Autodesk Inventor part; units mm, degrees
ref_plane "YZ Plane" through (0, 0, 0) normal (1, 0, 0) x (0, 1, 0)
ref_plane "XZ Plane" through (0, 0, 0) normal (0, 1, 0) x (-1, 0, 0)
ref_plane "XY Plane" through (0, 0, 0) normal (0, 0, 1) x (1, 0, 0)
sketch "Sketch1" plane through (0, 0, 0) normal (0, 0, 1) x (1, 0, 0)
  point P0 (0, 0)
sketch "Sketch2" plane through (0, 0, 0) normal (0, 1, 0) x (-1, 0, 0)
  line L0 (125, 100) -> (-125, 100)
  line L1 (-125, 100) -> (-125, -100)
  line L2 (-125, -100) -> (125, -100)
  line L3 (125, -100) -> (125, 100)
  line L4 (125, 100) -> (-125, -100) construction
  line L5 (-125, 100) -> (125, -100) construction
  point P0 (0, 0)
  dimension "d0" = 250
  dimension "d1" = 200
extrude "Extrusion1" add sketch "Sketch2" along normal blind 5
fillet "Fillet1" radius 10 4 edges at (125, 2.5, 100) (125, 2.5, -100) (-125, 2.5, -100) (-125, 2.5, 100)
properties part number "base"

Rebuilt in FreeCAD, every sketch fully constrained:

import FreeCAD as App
import Part
import Sketcher

V = App.Vector


def edges_at(feature, points):
    """Names of the edges that pass closest to the given points."""
    edges = feature.Shape.Edges
    near = lambda p: min(range(len(edges)), key=lambda i: edges[i].distToShape(Part.Vertex(*p))[0])
    return sorted({f"Edge{near(p) + 1}" for p in points})

doc = App.newDocument("Part")
body = doc.addObject("PartDesign::Body", "Body")

# Sketch on XZ plane
sketch1 = doc.addObject("Sketcher::SketchObject", "Sketch")
body.addObject(sketch1)
sketch1.AttachmentSupport = (doc.XZ_Plane, [""])
sketch1.MapMode = "FlatFace"
sketch1.addGeometry([
    Part.LineSegment(V(-125, -100, 0), V(-125, 100, 0)),
    Part.LineSegment(V(-125, 100, 0), V(125, 100, 0)),
    Part.LineSegment(V(125, 100, 0), V(125, -100, 0)),
    Part.LineSegment(V(125, -100, 0), V(-125, -100, 0)),
], False)
sketch1.addConstraint([
    Sketcher.Constraint("Coincident", 0, 2, 1, 1),
    Sketcher.Constraint("Coincident", 1, 2, 2, 1),
    Sketcher.Constraint("Coincident", 2, 2, 3, 1),
    Sketcher.Constraint("Coincident", 3, 2, 0, 1),
    Sketcher.Constraint("Vertical", 0),
    Sketcher.Constraint("Horizontal", 1),
    Sketcher.Constraint("Vertical", 2),
    Sketcher.Constraint("Horizontal", 3),
    Sketcher.Constraint("Symmetric", 0, 2, 2, 2, -1, 1),
    Sketcher.Constraint("DistanceX", 1, 1, 1, 2, 250.0),
    Sketcher.Constraint("DistanceY", 0, 1, 0, 2, 200.0),
])
pad1 = doc.addObject("PartDesign::Pad", "Pad")
body.addObject(pad1)
pad1.Profile = sketch1
pad1.Length = 5
pad1.Reversed = True
doc.recompute()

fillet = doc.addObject("PartDesign::Fillet", "Fillet")
body.addObject(fillet)
fillet.Base = (pad1, edges_at(pad1, [
    (125, 2.5, 100),
    (125, 2.5, -100),
    (-125, 2.5, -100),
    (-125, 2.5, 100),
]))
fillet.Radius = 10

doc.recompute()
